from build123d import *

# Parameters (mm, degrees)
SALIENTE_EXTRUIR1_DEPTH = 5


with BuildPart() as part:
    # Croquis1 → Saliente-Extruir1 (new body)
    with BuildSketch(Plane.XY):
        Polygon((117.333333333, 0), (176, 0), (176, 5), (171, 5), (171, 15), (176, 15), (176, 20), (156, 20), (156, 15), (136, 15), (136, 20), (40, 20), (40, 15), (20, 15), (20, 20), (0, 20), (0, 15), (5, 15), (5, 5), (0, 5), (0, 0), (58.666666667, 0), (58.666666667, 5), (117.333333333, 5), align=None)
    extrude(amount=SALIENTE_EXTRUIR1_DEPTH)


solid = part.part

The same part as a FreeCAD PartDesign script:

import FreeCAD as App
import Part
import Sketcher
Q = App.Units.Quantity


def add_polygon(sketch, points):
    """Adds a closed chain of lines whose ends are joined by coincident constraints."""
    first, n = sketch.GeometryCount, len(points)
    for a, b in zip(points, points[1:] + points[:1]):
        sketch.addGeometry(Part.LineSegment(App.Vector(*a, 0), App.Vector(*b, 0)), False)
    for i in range(n):
        sketch.addConstraint(Sketcher.Constraint("Coincident", first + i, 2, first + (i + 1) % n, 1))

doc = App.newDocument("Part")
params = doc.addObject("Spreadsheet::Sheet", "Params")
for row, (alias, value) in enumerate([
    ("sketch1_width", "5 mm"),
    ("sketch1_width2", "20 mm"),
    ("sketch1_width3", "96 mm"),
    ("sketch1_height", "10 mm"),
    ("pad1_length", "5 mm"),
], start=1):
    params.set(f"A{row}", alias)
    params.set(f"B{row}", "=" + value)
    params.setAlias(f"B{row}", alias)

body = doc.addObject("PartDesign::Body", "Body")

# Sketch on XY plane
sketch1 = body.newObject("Sketcher::SketchObject", "Sketch")
sketch1.AttachmentSupport = (doc.getObject("XY_Plane"), [""])
sketch1.MapMode = "FlatFace"
add_polygon(sketch1, [(117, 0), (176, 0), (176, 5), (171, 5), (171, 15), (176, 15), (176, 20), (156, 20), (156, 15), (136, 15), (136, 20), (40, 20), (40, 15), (20, 15), (20, 20), (0, 20), (0, 15), (5, 15), (5, 5), (0, 5), (0, 0), (59, 0), (59, 5), (117, 5)])  # lines 0-23
sketch1.addConstraint(Sketcher.Constraint("Horizontal", 0))
sketch1.addConstraint(Sketcher.Constraint("Vertical", 1))
sketch1.addConstraint(Sketcher.Constraint("Horizontal", 2))
sketch1.addConstraint(Sketcher.Constraint("Vertical", 3))
sketch1.addConstraint(Sketcher.Constraint("Horizontal", 4))
sketch1.addConstraint(Sketcher.Constraint("Vertical", 5))
sketch1.addConstraint(Sketcher.Constraint("Horizontal", 6))
sketch1.addConstraint(Sketcher.Constraint("Vertical", 7))
sketch1.addConstraint(Sketcher.Constraint("Horizontal", 8))
sketch1.addConstraint(Sketcher.Constraint("Vertical", 9))
sketch1.addConstraint(Sketcher.Constraint("Horizontal", 10))
sketch1.addConstraint(Sketcher.Constraint("Vertical", 11))
sketch1.addConstraint(Sketcher.Constraint("Horizontal", 12))
sketch1.addConstraint(Sketcher.Constraint("Vertical", 13))
sketch1.addConstraint(Sketcher.Constraint("Horizontal", 14))
sketch1.addConstraint(Sketcher.Constraint("Vertical", 15))
sketch1.addConstraint(Sketcher.Constraint("Horizontal", 16))
sketch1.addConstraint(Sketcher.Constraint("Vertical", 17))
sketch1.addConstraint(Sketcher.Constraint("Horizontal", 18))
sketch1.addConstraint(Sketcher.Constraint("Vertical", 19))
sketch1.addConstraint(Sketcher.Constraint("Horizontal", 20))
sketch1.addConstraint(Sketcher.Constraint("Vertical", 21))
sketch1.addConstraint(Sketcher.Constraint("Horizontal", 22))
sketch1.addConstraint(Sketcher.Constraint("Vertical", 23))
sketch1.addConstraint(Sketcher.Constraint("Coincident", 19, 2, -1, 1))
sketch1.addConstraint(Sketcher.Constraint("PointOnObject", 0, 2, -1))
sketch1.addConstraint(Sketcher.Constraint("PointOnObject", 14, 2, -2))
sketch1.addConstraint(Sketcher.Constraint("Horizontal", 4, 2, 7, 2))
sketch1.addConstraint(Sketcher.Constraint("Horizontal", 6, 2, 9, 2))
sketch1.addConstraint(Sketcher.Constraint("Horizontal", 8, 2, 11, 2))
sketch1.addConstraint(Sketcher.Constraint("Horizontal", 10, 2, 13, 2))
sketch1.addConstraint(Sketcher.Constraint("Horizontal", 12, 2, 15, 2))
sketch1.addConstraint(Sketcher.Constraint("Horizontal", 2, 2, 17, 2))
sketch1.addConstraint(Sketcher.Constraint("Horizontal", 18, 2, 21, 2))
sketch1.addConstraint(Sketcher.Constraint("Vertical", 1, 2, 4, 2))
sketch1.addConstraint(Sketcher.Constraint("Equal", 6, 8))
sketch1.addConstraint(Sketcher.Constraint("Equal", 8, 12))
sketch1.addConstraint(Sketcher.Constraint("Equal", 12, 14))
sketch1.addConstraint(Sketcher.Constraint("Equal", 4, 16))
sketch1.addConstraint(Sketcher.Constraint("Equal", 0, 20))
sketch1.addConstraint(Sketcher.Constraint("Equal", 20, 22))
sketch1.addConstraint(Sketcher.Constraint("Equal", 18, 1))
sketch1.addConstraint(Sketcher.Constraint("Equal", 1, 5))
sketch1.addConstraint(Sketcher.Constraint("DistanceX", 2, 2, 2, 1, Q("5 mm")))
sketch1.addConstraint(Sketcher.Constraint("DistanceX", 6, 2, 6, 1, Q("20 mm")))
sketch1.addConstraint(Sketcher.Constraint("DistanceX", 10, 2, 10, 1, Q("96 mm")))
sketch1.addConstraint(Sketcher.Constraint("DistanceY", 3, 1, 3, 2, Q("10 mm")))
sketch1.setExpression("Constraints[67]", "Params.sketch1_width")
sketch1.setExpression("Constraints[68]", "Params.sketch1_width2")
sketch1.setExpression("Constraints[69]", "Params.sketch1_width3")
sketch1.setExpression("Constraints[70]", "Params.sketch1_height")
pad1 = body.newObject("PartDesign::Pad", "Pad")
pad1.Profile = sketch1
pad1.setExpression("Length", "Params.pad1_length")

doc.recompute()
